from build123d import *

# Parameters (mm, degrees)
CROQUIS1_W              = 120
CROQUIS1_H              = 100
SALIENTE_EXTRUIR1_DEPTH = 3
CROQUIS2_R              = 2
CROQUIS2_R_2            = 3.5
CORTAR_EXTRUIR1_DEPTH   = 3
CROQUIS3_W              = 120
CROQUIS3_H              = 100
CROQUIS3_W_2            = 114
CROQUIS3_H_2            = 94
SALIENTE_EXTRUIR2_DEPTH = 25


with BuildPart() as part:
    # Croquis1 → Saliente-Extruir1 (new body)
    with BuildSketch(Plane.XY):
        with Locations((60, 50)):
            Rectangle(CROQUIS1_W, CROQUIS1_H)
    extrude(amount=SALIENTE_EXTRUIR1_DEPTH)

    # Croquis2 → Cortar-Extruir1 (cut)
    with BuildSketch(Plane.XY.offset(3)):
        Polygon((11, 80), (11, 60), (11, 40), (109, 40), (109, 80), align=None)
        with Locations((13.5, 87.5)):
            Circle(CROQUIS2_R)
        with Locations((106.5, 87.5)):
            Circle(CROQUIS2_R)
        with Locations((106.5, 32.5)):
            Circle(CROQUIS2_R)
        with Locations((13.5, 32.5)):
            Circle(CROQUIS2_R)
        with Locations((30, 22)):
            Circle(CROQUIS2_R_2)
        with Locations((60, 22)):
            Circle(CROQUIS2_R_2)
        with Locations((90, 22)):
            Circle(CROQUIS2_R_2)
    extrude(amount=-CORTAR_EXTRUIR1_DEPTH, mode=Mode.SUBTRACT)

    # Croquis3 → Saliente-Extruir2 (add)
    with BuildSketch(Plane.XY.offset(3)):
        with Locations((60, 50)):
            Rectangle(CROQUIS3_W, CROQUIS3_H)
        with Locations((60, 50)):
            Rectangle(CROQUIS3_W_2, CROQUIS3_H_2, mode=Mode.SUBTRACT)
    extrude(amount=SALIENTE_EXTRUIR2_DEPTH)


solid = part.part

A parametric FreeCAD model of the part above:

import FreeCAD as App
import Part
import Sketcher
Q = App.Units.Quantity


def add_polygon(sketch, points):
    """Adds a closed chain of lines whose ends are joined by coincident constraints."""
    first, n = sketch.GeometryCount, len(points)
    for a, b in zip(points, points[1:] + points[:1]):
        sketch.addGeometry(Part.LineSegment(App.Vector(*a, 0), App.Vector(*b, 0)), False)
    for i in range(n):
        sketch.addConstraint(Sketcher.Constraint("Coincident", first + i, 2, first + (i + 1) % n, 1))

doc = App.newDocument("Part")
body = doc.addObject("PartDesign::Body", "Body")

# Sketch on XY plane
sketch1 = doc.addObject("Sketcher::SketchObject", "Sketch")
body.addObject(sketch1)
sketch1.AttachmentSupport = (doc.XY_Plane, [""])
sketch1.MapMode = "FlatFace"
add_polygon(sketch1, [(0, 100), (0, 0), (120, 0), (120, 100)])  # lines 0-3
sketch1.addConstraint([
    Sketcher.Constraint("Vertical", 0),
    Sketcher.Constraint("Horizontal", 1),
    Sketcher.Constraint("Vertical", 2),
    Sketcher.Constraint("Horizontal", 3),
    Sketcher.Constraint("Coincident", 0, 2, -1, 1),
    Sketcher.Constraint("DistanceX", 1, 1, 1, 2, Q("120 mm")),
    Sketcher.Constraint("DistanceY", 0, 2, 0, 1, Q("100 mm")),
])
pad1 = doc.addObject("PartDesign::Pad", "Pad")
body.addObject(pad1)
pad1.Profile = sketch1
pad1.Length = 3

# Sketch on XY plane
sketch2 = doc.addObject("Sketcher::SketchObject", "Sketch001")
body.addObject(sketch2)
sketch2.AttachmentSupport = (doc.XY_Plane, [""])
sketch2.MapMode = "FlatFace"
sketch2.AttachmentOffset = App.Placement(App.Vector(0, 0, 3), App.Rotation())
add_polygon(sketch2, [(11, 80), (11, 40), (109, 40), (109, 80)])  # lines 0-3
sketch2.addGeometry(Part.Circle(App.Vector(13.5, 87.5, 0), App.Vector(0, 0, 1), 2), False)  # 4
sketch2.addGeometry(Part.Circle(App.Vector(106.5, 87.5, 0), App.Vector(0, 0, 1), 2), False)  # 5
sketch2.addGeometry(Part.Circle(App.Vector(106.5, 32.5, 0), App.Vector(0, 0, 1), 2), False)  # 6
sketch2.addGeometry(Part.Circle(App.Vector(13.5, 32.5, 0), App.Vector(0, 0, 1), 2), False)  # 7
sketch2.addGeometry(Part.Circle(App.Vector(30, 22, 0), App.Vector(0, 0, 1), 3.5), False)  # 8
sketch2.addGeometry(Part.Circle(App.Vector(60, 22, 0), App.Vector(0, 0, 1), 3.5), False)  # 9
sketch2.addGeometry(Part.Circle(App.Vector(90, 22, 0), App.Vector(0, 0, 1), 3.5), False)  # 10
sketch2.addConstraint([
    Sketcher.Constraint("Vertical", 0),
    Sketcher.Constraint("Horizontal", 1),
    Sketcher.Constraint("Vertical", 2),
    Sketcher.Constraint("Horizontal", 3),
    Sketcher.Constraint("Equal", 4, 5),
    Sketcher.Constraint("Equal", 5, 6),
    Sketcher.Constraint("Equal", 6, 7),
    Sketcher.Constraint("Equal", 8, 9),
    Sketcher.Constraint("Equal", 9, 10),
    Sketcher.Constraint("Horizontal", 4, 3, 5, 3),
    Sketcher.Constraint("Horizontal", 6, 3, 7, 3),
    Sketcher.Constraint("Horizontal", 8, 3, 9, 3),
    Sketcher.Constraint("Horizontal", 9, 3, 10, 3),
    Sketcher.Constraint("Vertical", 5, 3, 6, 3),
    Sketcher.Constraint("Vertical", 4, 3, 7, 3),
    Sketcher.Constraint("Diameter", 4, Q("4 mm")),
    Sketcher.Constraint("Diameter", 8, Q("7 mm")),
    Sketcher.Constraint("DistanceX", 1, 1, 1, 2, Q("98 mm")),
    Sketcher.Constraint("DistanceY", 0, 2, 0, 1, Q("40 mm")),
    Sketcher.Constraint("DistanceX", -1, 1, 8, 3, Q("30 mm")),
    Sketcher.Constraint("DistanceY", -1, 1, 8, 3, Q("22 mm")),
    Sketcher.Constraint("DistanceX", -1, 1, 9, 3, Q("60 mm")),
    Sketcher.Constraint("DistanceX", -1, 1, 10, 3, Q("90 mm")),
    Sketcher.Constraint("DistanceX", -1, 1, 0, 2, Q("11 mm")),
    Sketcher.Constraint("DistanceY", -1, 1, 0, 2, Q("40 mm")),
    Sketcher.Constraint("DistanceX", 4, 3, 5, 3, Q("93 mm")),
    Sketcher.Constraint("DistanceY", 6, 3, 5, 3, Q("55 mm")),
    Sketcher.Constraint("DistanceX", -1, 1, 4, 3, Q("13.5 mm")),
    Sketcher.Constraint("DistanceY", -1, 1, 4, 3, Q("87.5 mm")),
])
pocket1 = doc.addObject("PartDesign::Pocket", "Pocket")
body.addObject(pocket1)
pocket1.Profile = sketch2
pocket1.Length = 3

# Sketch on XY plane
sketch3 = doc.addObject("Sketcher::SketchObject", "Sketch002")
body.addObject(sketch3)
sketch3.AttachmentSupport = (doc.XY_Plane, [""])
sketch3.MapMode = "FlatFace"
sketch3.AttachmentOffset = App.Placement(App.Vector(0, 0, 3), App.Rotation())
add_polygon(sketch3, [(0, 100), (0, 0), (120, 0), (120, 100)])  # lines 0-3
add_polygon(sketch3, [(117, 3), (3, 3), (3, 97), (117, 97)])  # lines 4-7
sketch3.addConstraint([
    Sketcher.Constraint("Vertical", 0),
    Sketcher.Constraint("Horizontal", 1),
    Sketcher.Constraint("Vertical", 2),
    Sketcher.Constraint("Horizontal", 3),
    Sketcher.Constraint("Horizontal", 4),
    Sketcher.Constraint("Vertical", 5),
    Sketcher.Constraint("Horizontal", 6),
    Sketcher.Constraint("Vertical", 7),
    Sketcher.Constraint("Coincident", 0, 2, -1, 1),
    Sketcher.Constraint("DistanceX", 1, 1, 1, 2, Q("120 mm")),
    Sketcher.Constraint("DistanceX", 4, 2, 4, 1, Q("114 mm")),
    Sketcher.Constraint("DistanceY", 0, 2, 0, 1, Q("100 mm")),
    Sketcher.Constraint("DistanceY", 5, 1, 5, 2, Q("94 mm")),
    Sketcher.Constraint("DistanceX", -1, 1, 4, 2, Q("3 mm")),
    Sketcher.Constraint("DistanceY", -1, 1, 4, 2, Q("3 mm")),
])
pad2 = doc.addObject("PartDesign::Pad", "Pad001")
body.addObject(pad2)
pad2.Profile = sketch3
pad2.Length = 25

doc.recompute()
